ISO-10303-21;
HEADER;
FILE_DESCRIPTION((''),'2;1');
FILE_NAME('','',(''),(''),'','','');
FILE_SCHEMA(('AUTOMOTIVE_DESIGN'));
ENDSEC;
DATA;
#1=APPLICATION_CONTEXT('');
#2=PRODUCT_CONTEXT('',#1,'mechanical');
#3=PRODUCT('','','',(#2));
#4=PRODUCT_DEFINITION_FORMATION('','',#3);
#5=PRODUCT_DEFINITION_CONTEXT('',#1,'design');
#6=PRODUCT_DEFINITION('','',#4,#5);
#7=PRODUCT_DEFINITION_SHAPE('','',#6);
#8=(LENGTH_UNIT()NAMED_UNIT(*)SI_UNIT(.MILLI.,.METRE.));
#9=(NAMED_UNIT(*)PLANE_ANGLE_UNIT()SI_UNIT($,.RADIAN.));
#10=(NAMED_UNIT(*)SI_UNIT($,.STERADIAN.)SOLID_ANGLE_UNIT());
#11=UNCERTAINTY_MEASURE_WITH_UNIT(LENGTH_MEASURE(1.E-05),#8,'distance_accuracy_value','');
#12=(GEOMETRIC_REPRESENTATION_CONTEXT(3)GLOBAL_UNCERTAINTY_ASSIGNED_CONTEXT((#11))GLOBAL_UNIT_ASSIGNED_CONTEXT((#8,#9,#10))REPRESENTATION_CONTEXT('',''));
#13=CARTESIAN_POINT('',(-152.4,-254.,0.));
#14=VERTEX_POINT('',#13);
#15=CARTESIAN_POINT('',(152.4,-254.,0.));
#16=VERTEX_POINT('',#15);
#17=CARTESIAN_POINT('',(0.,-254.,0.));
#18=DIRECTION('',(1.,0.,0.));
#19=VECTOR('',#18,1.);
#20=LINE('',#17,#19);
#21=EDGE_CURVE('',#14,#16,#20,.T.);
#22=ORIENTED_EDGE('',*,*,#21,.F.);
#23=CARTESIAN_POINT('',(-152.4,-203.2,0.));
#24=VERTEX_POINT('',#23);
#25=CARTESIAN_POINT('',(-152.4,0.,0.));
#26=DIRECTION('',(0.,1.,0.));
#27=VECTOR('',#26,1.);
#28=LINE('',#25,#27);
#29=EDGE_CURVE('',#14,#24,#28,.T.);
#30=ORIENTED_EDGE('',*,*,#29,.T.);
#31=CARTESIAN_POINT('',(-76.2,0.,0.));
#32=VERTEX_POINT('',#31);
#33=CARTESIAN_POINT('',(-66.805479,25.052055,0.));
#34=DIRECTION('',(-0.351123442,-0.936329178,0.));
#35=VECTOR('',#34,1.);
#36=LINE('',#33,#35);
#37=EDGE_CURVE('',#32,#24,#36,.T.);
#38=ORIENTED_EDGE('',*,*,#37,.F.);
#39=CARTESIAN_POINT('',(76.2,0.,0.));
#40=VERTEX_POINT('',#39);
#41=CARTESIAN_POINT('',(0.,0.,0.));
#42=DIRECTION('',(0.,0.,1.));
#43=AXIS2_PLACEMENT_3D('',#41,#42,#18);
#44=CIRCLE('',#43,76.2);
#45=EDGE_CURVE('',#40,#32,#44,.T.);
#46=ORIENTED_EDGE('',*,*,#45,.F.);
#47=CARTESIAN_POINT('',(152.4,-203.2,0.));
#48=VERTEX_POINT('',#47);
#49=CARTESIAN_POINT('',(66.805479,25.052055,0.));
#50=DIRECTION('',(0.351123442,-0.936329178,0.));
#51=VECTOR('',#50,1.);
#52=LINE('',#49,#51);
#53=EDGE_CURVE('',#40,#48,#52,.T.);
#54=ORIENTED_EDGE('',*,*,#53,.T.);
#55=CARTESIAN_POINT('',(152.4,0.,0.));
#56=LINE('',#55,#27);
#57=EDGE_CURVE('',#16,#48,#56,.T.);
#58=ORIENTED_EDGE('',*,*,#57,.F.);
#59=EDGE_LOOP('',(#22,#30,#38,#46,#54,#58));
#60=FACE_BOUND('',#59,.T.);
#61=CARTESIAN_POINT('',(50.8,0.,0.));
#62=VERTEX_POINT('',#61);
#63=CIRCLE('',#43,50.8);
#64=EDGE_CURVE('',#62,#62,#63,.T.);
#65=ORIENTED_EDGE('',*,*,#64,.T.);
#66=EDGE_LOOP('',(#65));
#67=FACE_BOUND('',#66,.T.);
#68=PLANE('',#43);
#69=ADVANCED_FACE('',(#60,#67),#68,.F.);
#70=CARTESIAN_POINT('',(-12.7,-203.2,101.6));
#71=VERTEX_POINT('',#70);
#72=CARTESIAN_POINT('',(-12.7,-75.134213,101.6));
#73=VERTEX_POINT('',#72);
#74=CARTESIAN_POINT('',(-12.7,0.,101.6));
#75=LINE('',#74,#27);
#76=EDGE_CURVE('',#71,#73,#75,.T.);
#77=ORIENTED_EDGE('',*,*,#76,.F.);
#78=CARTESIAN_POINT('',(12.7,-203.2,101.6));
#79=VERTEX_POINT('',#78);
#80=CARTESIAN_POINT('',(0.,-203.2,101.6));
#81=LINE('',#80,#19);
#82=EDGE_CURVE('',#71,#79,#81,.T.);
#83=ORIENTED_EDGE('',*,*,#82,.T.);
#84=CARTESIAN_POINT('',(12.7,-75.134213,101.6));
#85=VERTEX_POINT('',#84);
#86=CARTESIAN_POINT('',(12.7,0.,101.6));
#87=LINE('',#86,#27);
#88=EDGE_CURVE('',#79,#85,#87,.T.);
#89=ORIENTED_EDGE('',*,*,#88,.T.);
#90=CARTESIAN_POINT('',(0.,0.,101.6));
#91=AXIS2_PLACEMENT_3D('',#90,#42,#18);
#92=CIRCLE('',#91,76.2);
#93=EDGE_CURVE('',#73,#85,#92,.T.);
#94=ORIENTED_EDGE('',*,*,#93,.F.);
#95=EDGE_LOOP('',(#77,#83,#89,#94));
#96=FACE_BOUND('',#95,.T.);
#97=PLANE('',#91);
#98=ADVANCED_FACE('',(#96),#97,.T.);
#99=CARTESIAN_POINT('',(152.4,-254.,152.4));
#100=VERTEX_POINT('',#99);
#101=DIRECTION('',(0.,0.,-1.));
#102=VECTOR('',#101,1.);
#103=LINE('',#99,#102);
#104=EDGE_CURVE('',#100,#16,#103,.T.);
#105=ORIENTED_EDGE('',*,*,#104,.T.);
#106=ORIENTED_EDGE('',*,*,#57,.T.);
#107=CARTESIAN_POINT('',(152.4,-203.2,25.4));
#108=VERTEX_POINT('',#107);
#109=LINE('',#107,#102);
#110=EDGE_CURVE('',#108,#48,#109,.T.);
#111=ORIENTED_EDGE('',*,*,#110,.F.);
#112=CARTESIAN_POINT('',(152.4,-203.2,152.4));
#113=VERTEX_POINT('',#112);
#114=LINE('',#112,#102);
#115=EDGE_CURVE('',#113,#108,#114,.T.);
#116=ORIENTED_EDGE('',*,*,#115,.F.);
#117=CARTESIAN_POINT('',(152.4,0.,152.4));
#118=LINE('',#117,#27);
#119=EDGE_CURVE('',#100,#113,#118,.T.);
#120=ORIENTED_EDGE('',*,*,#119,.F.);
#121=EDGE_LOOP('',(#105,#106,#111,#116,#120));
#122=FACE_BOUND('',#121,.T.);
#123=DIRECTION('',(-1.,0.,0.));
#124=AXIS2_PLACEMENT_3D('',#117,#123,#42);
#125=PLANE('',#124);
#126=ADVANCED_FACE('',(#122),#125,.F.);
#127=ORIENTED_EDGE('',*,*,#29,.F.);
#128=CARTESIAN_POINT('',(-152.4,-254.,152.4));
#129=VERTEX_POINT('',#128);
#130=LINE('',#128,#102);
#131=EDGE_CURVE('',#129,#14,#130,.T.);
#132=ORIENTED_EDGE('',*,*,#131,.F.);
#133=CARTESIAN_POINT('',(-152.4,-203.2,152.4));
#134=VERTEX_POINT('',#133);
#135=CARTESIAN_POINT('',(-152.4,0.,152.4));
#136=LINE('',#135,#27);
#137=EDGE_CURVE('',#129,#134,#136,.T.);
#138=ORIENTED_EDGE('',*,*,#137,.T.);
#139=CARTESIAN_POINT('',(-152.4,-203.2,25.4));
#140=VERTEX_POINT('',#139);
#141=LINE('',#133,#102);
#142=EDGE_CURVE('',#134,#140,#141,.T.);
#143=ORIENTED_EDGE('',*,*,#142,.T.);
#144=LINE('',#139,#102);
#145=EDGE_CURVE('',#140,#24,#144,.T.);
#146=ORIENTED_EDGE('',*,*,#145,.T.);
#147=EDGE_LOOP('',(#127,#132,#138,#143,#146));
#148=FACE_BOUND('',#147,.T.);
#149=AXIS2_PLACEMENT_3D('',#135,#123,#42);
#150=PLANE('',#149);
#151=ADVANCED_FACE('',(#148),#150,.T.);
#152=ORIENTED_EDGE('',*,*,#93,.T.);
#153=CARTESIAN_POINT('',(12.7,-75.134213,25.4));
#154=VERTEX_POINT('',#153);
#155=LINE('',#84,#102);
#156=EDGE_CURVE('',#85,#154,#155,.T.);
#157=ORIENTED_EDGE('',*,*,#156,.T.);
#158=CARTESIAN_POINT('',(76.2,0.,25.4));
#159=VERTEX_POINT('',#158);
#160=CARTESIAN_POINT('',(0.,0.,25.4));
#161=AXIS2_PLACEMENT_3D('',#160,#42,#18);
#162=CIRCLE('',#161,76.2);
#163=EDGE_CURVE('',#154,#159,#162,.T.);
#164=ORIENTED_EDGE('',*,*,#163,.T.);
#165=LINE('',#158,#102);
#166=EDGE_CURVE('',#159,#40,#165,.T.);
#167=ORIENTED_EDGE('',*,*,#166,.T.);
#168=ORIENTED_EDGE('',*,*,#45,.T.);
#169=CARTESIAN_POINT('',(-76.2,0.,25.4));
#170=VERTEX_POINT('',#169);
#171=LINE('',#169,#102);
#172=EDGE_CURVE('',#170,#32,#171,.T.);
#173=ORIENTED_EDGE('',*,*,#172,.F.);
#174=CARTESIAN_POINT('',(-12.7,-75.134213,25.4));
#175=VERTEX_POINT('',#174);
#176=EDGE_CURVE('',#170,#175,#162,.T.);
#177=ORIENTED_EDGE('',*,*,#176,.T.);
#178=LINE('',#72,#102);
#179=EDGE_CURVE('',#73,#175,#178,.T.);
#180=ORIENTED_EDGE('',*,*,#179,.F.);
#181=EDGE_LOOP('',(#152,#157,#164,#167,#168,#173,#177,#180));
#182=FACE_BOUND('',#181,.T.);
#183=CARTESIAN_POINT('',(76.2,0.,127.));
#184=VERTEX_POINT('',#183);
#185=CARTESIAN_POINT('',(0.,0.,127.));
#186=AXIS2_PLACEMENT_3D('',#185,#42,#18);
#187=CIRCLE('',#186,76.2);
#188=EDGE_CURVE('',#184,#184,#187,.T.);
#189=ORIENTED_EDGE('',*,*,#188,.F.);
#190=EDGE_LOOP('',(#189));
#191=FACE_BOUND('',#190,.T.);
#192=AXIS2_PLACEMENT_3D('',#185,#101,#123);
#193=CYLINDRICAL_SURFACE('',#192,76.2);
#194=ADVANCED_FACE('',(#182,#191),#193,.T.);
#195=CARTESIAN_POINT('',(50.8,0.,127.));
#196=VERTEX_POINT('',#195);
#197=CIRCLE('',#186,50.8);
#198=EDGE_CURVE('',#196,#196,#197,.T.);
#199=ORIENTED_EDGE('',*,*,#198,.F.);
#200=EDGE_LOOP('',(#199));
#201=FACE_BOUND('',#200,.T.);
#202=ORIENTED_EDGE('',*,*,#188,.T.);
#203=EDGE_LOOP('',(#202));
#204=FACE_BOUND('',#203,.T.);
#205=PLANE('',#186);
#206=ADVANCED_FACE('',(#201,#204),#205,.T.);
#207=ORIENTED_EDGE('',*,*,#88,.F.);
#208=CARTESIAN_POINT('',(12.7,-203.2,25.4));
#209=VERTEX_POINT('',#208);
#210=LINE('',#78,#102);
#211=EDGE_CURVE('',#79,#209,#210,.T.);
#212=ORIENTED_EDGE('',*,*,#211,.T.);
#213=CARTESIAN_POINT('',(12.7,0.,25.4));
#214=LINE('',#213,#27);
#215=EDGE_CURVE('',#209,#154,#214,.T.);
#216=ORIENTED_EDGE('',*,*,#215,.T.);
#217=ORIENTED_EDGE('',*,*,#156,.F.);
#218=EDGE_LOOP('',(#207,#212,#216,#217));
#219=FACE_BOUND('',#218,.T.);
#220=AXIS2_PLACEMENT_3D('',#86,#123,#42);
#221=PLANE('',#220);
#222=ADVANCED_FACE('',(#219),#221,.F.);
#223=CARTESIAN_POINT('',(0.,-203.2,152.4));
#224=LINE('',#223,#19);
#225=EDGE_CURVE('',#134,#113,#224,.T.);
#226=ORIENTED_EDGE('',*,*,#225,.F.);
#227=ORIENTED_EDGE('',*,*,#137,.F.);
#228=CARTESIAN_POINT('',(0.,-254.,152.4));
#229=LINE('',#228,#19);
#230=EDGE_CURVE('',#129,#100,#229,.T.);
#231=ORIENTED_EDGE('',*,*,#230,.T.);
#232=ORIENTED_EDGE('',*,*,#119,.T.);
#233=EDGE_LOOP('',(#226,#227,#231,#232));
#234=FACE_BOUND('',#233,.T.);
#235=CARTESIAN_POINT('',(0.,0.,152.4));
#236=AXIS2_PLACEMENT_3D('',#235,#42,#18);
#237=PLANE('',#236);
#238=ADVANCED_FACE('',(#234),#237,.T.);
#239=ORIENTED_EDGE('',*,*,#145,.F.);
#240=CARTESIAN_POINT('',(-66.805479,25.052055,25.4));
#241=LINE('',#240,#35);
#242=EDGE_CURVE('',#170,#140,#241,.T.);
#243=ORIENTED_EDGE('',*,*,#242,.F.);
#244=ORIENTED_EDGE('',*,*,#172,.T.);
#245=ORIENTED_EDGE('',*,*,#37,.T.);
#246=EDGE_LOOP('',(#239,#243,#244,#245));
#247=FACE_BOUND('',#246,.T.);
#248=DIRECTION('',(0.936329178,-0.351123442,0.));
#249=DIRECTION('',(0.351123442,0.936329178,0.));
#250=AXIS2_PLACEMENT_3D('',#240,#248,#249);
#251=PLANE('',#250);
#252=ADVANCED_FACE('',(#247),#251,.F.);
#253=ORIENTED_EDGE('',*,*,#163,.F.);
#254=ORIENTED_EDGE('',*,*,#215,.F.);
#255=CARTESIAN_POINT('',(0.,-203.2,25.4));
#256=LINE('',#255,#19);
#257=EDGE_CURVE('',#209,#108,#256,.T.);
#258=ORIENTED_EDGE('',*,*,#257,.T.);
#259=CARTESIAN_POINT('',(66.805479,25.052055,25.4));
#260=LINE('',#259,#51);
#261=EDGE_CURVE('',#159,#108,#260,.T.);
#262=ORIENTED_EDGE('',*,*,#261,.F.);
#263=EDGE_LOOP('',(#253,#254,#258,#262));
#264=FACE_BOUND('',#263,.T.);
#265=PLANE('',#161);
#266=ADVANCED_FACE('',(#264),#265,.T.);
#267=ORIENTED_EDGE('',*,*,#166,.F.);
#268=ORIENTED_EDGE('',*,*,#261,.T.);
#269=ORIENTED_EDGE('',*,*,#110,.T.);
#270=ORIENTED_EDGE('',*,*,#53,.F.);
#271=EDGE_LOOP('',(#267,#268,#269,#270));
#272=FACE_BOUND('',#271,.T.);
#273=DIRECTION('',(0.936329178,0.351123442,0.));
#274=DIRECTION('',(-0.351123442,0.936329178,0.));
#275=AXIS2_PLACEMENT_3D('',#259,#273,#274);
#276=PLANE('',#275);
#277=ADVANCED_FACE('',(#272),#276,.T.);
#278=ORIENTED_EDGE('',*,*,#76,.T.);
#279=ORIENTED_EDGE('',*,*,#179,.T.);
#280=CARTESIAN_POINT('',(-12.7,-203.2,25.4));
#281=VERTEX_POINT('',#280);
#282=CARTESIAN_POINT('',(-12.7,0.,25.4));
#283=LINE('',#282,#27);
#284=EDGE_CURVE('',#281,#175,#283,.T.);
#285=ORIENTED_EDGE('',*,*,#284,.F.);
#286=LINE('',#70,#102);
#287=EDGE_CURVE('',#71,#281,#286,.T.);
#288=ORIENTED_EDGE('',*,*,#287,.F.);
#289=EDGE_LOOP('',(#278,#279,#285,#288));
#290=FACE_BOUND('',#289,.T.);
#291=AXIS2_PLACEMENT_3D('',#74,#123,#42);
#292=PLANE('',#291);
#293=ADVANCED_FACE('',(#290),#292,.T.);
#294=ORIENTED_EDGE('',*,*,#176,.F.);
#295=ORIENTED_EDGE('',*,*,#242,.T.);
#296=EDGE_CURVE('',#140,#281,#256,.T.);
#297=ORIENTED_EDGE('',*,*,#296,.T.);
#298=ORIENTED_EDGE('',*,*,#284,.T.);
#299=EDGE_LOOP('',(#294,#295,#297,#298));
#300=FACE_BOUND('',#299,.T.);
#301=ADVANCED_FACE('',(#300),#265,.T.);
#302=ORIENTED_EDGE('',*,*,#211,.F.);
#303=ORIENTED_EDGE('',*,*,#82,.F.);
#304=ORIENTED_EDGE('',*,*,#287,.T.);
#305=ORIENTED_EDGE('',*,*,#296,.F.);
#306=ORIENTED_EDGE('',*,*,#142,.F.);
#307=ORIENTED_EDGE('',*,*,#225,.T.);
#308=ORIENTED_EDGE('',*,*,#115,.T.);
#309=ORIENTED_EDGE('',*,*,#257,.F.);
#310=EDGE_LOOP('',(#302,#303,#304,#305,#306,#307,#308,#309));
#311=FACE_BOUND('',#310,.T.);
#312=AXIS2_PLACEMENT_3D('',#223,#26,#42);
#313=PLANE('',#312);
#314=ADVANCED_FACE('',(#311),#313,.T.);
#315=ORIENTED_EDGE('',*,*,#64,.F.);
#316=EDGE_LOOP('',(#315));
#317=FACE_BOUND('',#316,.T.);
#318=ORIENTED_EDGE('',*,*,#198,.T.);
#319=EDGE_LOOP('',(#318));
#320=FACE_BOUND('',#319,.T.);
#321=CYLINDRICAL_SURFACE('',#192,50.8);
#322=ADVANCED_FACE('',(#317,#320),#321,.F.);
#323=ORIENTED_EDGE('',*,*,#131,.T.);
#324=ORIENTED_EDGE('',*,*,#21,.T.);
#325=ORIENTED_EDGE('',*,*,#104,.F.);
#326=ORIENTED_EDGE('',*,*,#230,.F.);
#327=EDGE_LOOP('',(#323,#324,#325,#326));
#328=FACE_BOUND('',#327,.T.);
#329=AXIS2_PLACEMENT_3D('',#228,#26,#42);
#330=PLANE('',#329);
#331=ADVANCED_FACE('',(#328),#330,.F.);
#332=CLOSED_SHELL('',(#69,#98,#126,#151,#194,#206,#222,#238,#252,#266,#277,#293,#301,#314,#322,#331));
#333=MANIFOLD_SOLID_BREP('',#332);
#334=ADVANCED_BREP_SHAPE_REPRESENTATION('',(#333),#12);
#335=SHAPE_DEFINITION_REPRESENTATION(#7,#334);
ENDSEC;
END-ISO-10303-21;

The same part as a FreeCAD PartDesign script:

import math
import FreeCAD as App
import Part
import Sketcher
Q = App.Units.Quantity


def add_polygon(sketch, points):
    """Adds a closed chain of lines whose ends are joined by coincident constraints."""
    first, n = sketch.GeometryCount, len(points)
    for a, b in zip(points, points[1:] + points[:1]):
        sketch.addGeometry(Part.LineSegment(App.Vector(*a, 0), App.Vector(*b, 0)), False)
    for i in range(n):
        sketch.addConstraint(Sketcher.Constraint("Coincident", first + i, 2, first + (i + 1) % n, 1))

doc = App.newDocument("Part")
body = doc.addObject("PartDesign::Body", "Body")

# Sketch on XY plane
sketch1 = doc.addObject("Sketcher::SketchObject", "Sketch")
body.addObject(sketch1)
sketch1.AttachmentSupport = (doc.XY_Plane, [""])
sketch1.MapMode = "FlatFace"
sketch1.addGeometry([
    Part.Circle(App.Vector(0, 0, 0), App.Vector(0, 0, 1), 76),
    Part.Circle(App.Vector(0, 0, 0), App.Vector(0, 0, 1), 51),
], False)
sketch1.addConstraint([
    Sketcher.Constraint("Coincident", 0, 3, -1, 1),
    Sketcher.Constraint("Coincident", 1, 3, -1, 1),
    Sketcher.Constraint("Diameter", 0, Q("6 in")),
    Sketcher.Constraint("Diameter", 1, Q("4 in")),
])
pad1 = doc.addObject("PartDesign::Pad", "Pad")
body.addObject(pad1)
pad1.Profile = sketch1
pad1.Length = Q("5 in")

# Sketch on XY plane
sketch2 = doc.addObject("Sketcher::SketchObject", "Sketch001")
body.addObject(sketch2)
sketch2.AttachmentSupport = (doc.XY_Plane, [""])
sketch2.MapMode = "FlatFace"
sketch2.addGeometry([
    Part.ArcOfCircle(Part.Circle(App.Vector(0, 0, 0), App.Vector(0, 0, 1), 76), math.radians(-99.59), math.radians(-80.41)),
    Part.LineSegment(App.Vector(-13, -75, 0), App.Vector(-13, -203, 0)),
    Part.LineSegment(App.Vector(-13, -203, 0), App.Vector(13, -203, 0)),
    Part.LineSegment(App.Vector(13, -203, 0), App.Vector(13, -75, 0)),
], False)
sketch2.addConstraint([
    Sketcher.Constraint("Coincident", 0, 1, 1, 1),
    Sketcher.Constraint("Coincident", 1, 2, 2, 1),
    Sketcher.Constraint("Coincident", 2, 2, 3, 1),
    Sketcher.Constraint("Coincident", 3, 2, 0, 2),
    Sketcher.Constraint("Vertical", 1),
    Sketcher.Constraint("Horizontal", 2),
    Sketcher.Constraint("Vertical", 3),
    Sketcher.Constraint("Coincident", 0, 3, -1, 1),
    Sketcher.Constraint("Horizontal", 0, 1, 3, 2),
    Sketcher.Constraint("Radius", 0, Q("3 in")),
    Sketcher.Constraint("DistanceX", 2, 1, 2, 2, Q("1 in")),
    Sketcher.Constraint("DistanceY", 1, 2, -1, 1, Q("8 in")),
])
pad2 = doc.addObject("PartDesign::Pad", "Pad001")
body.addObject(pad2)
pad2.Profile = sketch2
pad2.Length = Q("4 in")

# Sketch on XY plane
sketch3 = doc.addObject("Sketcher::SketchObject", "Sketch002")
body.addObject(sketch3)
sketch3.AttachmentSupport = (doc.XY_Plane, [""])
sketch3.MapMode = "FlatFace"
add_polygon(sketch3, [(-152, -203), (-152, -254), (152, -254), (152, -203)])  # lines 0-3
sketch3.addConstraint([
    Sketcher.Constraint("Vertical", 0),
    Sketcher.Constraint("Horizontal", 1),
    Sketcher.Constraint("Vertical", 2),
    Sketcher.Constraint("Horizontal", 3),
    Sketcher.Constraint("DistanceX", 1, 1, 1, 2, Q("12 in")),
    Sketcher.Constraint("DistanceY", 0, 2, 0, 1, Q("2 in")),
    Sketcher.Constraint("DistanceX", 0, 2, -1, 1, Q("6 in")),
    Sketcher.Constraint("DistanceY", 0, 2, -1, 1, Q("10 in")),
])
pad3 = doc.addObject("PartDesign::Pad", "Pad002")
body.addObject(pad3)
pad3.Profile = sketch3
pad3.Length = Q("6 in")

# Sketch on XY plane
sketch4 = doc.addObject("Sketcher::SketchObject", "Sketch003")
body.addObject(sketch4)
sketch4.AttachmentSupport = (doc.XY_Plane, [""])
sketch4.MapMode = "FlatFace"
sketch4.addGeometry([
    Part.ArcOfCircle(Part.Circle(App.Vector(0, 0, 0), App.Vector(0, 0, 1), 76), math.radians(180), math.radians(260)),  # 0
    Part.LineSegment(App.Vector(-76, 0, 0), App.Vector(-152, -203, 0)),  # 1
    Part.LineSegment(App.Vector(-152, -203, 0), App.Vector(-13, -203, 0)),  # 2
    Part.LineSegment(App.Vector(-13, -203, 0), App.Vector(-13, -75, 0)),  # 3
    Part.LineSegment(App.Vector(152, -203, 0), App.Vector(76, 0, 0)),  # 4
    Part.ArcOfCircle(Part.Circle(App.Vector(0, 0, 0), App.Vector(0, 0, 1), 76), math.radians(-80), math.radians(0)),  # 5
    Part.LineSegment(App.Vector(13, -75, 0), App.Vector(13, -203, 0)),  # 6
    Part.LineSegment(App.Vector(13, -203, 0), App.Vector(152, -203, 0)),  # 7
], False)
sketch4.addConstraint([
    Sketcher.Constraint("Coincident", 0, 1, 1, 1),
    Sketcher.Constraint("Coincident", 1, 2, 2, 1),
    Sketcher.Constraint("Coincident", 2, 2, 3, 1),
    Sketcher.Constraint("Coincident", 3, 2, 0, 2),
    Sketcher.Constraint("Coincident", 4, 2, 5, 2),
    Sketcher.Constraint("Coincident", 5, 1, 6, 1),
    Sketcher.Constraint("Coincident", 6, 2, 7, 1),
    Sketcher.Constraint("Coincident", 7, 2, 4, 1),
    Sketcher.Constraint("Horizontal", 2),
    Sketcher.Constraint("Vertical", 3),
    Sketcher.Constraint("Vertical", 6),
    Sketcher.Constraint("Horizontal", 7),
    Sketcher.Constraint("Coincident", 0, 3, -1, 1),
    Sketcher.Constraint("Coincident", 5, 3, -1, 1),
    Sketcher.Constraint("Equal", 0, 5),
    Sketcher.Constraint("Symmetric", 2, 2, 6, 2, -2),
    Sketcher.Constraint("PointOnObject", 0, 1, -1),
    Sketcher.Constraint("PointOnObject", 4, 2, -1),
    Sketcher.Constraint("Equal", 2, 7),
    Sketcher.Constraint("Radius", 0, Q("3 in")),
    Sketcher.Constraint("DistanceX", 2, 1, 2, 2, Q("5.5 in")),
    Sketcher.Constraint("DistanceX", 1, 2, -1, 1, Q("6 in")),
    Sketcher.Constraint("DistanceY", 1, 2, -1, 1, Q("8 in")),
])
pad4 = doc.addObject("PartDesign::Pad", "Pad003")
body.addObject(pad4)
pad4.Profile = sketch4
pad4.Length = Q("1 in")

doc.recompute()
